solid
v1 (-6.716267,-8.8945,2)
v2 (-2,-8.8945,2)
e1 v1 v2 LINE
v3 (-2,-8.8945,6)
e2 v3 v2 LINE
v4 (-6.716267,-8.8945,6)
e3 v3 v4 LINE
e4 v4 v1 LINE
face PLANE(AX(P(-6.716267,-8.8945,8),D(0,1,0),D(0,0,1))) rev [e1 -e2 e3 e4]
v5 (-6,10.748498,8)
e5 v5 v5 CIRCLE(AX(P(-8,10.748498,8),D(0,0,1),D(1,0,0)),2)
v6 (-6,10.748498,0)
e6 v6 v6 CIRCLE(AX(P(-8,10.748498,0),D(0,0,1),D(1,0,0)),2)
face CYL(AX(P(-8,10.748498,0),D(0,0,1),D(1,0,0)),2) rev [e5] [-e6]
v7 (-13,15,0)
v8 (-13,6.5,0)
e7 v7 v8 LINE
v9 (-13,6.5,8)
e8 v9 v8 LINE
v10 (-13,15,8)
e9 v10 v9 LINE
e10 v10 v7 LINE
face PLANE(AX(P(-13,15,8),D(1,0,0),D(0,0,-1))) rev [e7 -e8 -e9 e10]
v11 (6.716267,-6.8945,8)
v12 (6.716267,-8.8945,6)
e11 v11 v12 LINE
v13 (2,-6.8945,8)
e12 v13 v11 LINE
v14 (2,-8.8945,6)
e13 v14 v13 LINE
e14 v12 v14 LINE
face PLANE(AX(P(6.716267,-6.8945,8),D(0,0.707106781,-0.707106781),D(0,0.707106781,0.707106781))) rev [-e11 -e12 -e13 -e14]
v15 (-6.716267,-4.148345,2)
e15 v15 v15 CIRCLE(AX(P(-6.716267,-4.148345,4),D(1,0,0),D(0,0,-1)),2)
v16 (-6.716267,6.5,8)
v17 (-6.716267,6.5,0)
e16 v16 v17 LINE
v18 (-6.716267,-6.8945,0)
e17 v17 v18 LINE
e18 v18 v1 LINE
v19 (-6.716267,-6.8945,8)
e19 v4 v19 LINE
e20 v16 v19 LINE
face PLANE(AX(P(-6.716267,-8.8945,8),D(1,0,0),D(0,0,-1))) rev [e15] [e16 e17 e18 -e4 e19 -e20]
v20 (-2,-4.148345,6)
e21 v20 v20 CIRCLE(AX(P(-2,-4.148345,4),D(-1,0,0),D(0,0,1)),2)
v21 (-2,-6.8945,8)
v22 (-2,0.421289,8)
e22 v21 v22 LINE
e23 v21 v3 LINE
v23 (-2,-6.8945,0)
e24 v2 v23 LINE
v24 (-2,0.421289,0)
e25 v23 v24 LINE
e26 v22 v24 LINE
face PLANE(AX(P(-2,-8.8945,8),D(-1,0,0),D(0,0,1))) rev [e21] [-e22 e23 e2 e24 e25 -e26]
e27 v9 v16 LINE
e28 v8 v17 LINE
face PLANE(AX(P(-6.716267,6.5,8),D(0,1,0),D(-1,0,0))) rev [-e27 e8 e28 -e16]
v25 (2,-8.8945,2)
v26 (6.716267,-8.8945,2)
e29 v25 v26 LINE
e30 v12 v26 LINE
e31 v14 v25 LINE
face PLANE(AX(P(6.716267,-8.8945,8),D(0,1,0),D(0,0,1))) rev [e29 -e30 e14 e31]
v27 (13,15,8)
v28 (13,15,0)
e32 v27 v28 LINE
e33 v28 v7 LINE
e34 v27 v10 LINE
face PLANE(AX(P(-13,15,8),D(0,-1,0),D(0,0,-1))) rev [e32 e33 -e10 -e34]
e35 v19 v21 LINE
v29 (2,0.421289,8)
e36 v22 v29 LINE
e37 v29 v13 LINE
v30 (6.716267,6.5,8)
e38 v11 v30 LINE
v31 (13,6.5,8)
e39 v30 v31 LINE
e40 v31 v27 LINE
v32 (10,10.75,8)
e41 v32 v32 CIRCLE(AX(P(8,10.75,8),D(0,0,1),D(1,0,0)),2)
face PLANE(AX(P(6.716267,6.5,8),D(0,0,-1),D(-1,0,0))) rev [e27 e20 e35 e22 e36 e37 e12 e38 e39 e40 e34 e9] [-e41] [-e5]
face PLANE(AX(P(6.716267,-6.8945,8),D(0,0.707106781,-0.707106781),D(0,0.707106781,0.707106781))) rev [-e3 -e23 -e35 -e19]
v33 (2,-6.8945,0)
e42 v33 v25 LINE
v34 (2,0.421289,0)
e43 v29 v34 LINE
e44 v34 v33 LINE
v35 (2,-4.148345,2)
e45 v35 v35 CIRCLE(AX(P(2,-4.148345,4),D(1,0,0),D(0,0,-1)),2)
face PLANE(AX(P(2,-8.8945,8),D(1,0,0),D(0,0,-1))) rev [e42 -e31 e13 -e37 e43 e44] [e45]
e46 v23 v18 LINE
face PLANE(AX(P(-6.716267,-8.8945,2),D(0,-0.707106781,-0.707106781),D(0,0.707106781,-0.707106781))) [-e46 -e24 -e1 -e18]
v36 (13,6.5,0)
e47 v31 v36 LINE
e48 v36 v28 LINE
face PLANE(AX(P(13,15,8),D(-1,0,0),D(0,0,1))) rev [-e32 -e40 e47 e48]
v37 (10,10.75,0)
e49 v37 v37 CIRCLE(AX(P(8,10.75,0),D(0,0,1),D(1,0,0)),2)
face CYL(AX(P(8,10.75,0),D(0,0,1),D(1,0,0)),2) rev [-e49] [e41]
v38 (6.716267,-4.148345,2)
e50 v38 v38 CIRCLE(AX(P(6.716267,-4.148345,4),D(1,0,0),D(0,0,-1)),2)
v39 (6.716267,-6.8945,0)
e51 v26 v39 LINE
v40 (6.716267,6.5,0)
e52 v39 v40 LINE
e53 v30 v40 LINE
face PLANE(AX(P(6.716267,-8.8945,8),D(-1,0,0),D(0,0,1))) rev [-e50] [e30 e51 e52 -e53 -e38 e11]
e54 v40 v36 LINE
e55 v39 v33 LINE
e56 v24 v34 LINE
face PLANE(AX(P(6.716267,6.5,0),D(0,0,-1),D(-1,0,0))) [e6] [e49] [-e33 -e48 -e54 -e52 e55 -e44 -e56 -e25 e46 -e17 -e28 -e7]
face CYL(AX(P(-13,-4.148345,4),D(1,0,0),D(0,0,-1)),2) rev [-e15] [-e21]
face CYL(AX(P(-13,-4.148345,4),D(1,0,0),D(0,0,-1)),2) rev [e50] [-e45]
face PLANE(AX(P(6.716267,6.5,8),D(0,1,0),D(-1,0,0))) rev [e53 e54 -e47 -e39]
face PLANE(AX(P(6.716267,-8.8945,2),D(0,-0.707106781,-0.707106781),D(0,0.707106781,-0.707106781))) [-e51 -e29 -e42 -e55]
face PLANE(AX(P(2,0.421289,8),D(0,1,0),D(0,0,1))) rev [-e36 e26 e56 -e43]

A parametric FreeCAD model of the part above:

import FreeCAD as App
import Part
import Sketcher

V = App.Vector


def edges_at(feature, points):
    """Names of the edges that pass closest to the given points."""
    edges = feature.Shape.Edges
    near = lambda p: min(range(len(edges)), key=lambda i: edges[i].distToShape(Part.Vertex(*p))[0])
    return sorted({f"Edge{near(p) + 1}" for p in points})

doc = App.newDocument("Part")
body = doc.addObject("PartDesign::Body", "Body")

# Sketch on XY plane
sketch1 = doc.addObject("Sketcher::SketchObject", "Sketch")
body.addObject(sketch1)
sketch1.AttachmentSupport = (doc.XY_Plane, [""])
sketch1.MapMode = "FlatFace"
sketch1.addGeometry([
    Part.LineSegment(V(13, 15, 0), V(-13, 15, 0)),  # 0
    Part.LineSegment(V(-13, 15, 0), V(-13, 6.5, 0)),  # 1
    Part.LineSegment(V(-13, 6.5, 0), V(-6.7, 6.5, 0)),  # 2
    Part.LineSegment(V(-6.7, 6.5, 0), V(-6.7, -8.9, 0)),  # 3
    Part.LineSegment(V(-6.7, -8.9, 0), V(-2, -8.9, 0)),  # 4
    Part.LineSegment(V(-2, -8.9, 0), V(-2, 0.4, 0)),  # 5
    Part.LineSegment(V(-2, 0.4, 0), V(2, 0.4, 0)),  # 6
    Part.LineSegment(V(2, 0.4, 0), V(2, -8.9, 0)),  # 7
    Part.LineSegment(V(2, -8.9, 0), V(6.7, -8.9, 0)),  # 8
    Part.LineSegment(V(6.7, -8.9, 0), V(6.7, 6.5, 0)),  # 9
    Part.LineSegment(V(6.7, 6.5, 0), V(13, 6.5, 0)),  # 10
    Part.LineSegment(V(13, 6.5, 0), V(13, 15, 0)),  # 11
], False)
sketch1.addConstraint([
    Sketcher.Constraint("Coincident", 0, 2, 1, 1),
    Sketcher.Constraint("Coincident", 1, 2, 2, 1),
    Sketcher.Constraint("Coincident", 2, 2, 3, 1),
    Sketcher.Constraint("Coincident", 3, 2, 4, 1),
    Sketcher.Constraint("Coincident", 4, 2, 5, 1),
    Sketcher.Constraint("Coincident", 5, 2, 6, 1),
    Sketcher.Constraint("Coincident", 6, 2, 7, 1),
    Sketcher.Constraint("Coincident", 7, 2, 8, 1),
    Sketcher.Constraint("Coincident", 8, 2, 9, 1),
    Sketcher.Constraint("Coincident", 9, 2, 10, 1),
    Sketcher.Constraint("Coincident", 10, 2, 11, 1),
    Sketcher.Constraint("Coincident", 11, 2, 0, 1),
    Sketcher.Constraint("Horizontal", 0),
    Sketcher.Constraint("Vertical", 1),
    Sketcher.Constraint("Horizontal", 2),
    Sketcher.Constraint("Vertical", 3),
    Sketcher.Constraint("Horizontal", 4),
    Sketcher.Constraint("Vertical", 5),
    Sketcher.Constraint("Horizontal", 6),
    Sketcher.Constraint("Vertical", 7),
    Sketcher.Constraint("Horizontal", 8),
    Sketcher.Constraint("Vertical", 9),
    Sketcher.Constraint("Horizontal", 10),
    Sketcher.Constraint("Vertical", 11),
    Sketcher.Constraint("Symmetric", 4, 2, 7, 2, -2),
    Sketcher.Constraint("Symmetric", 2, 2, 9, 2, -2),
    Sketcher.Constraint("Equal", 2, 10),
    Sketcher.Constraint("DistanceX", 0, 2, 0, 1, 26.0),
    Sketcher.Constraint("DistanceX", 6, 1, 6, 2, 4.0),
    Sketcher.Constraint("DistanceY", 1, 2, 1, 1, 8.5),
    Sketcher.Constraint("DistanceY", -1, 1, 0, 2, 15.0),
    Sketcher.Constraint("DistanceY", 3, 2, 3, 1, 15.3945),
    Sketcher.Constraint("DistanceY", 5, 1, 5, 2, 9.315789),
    Sketcher.Constraint("DistanceX", 2, 1, 2, 2, 6.283733),
])
pad1 = doc.addObject("PartDesign::Pad", "Pad")
body.addObject(pad1)
pad1.Profile = sketch1
pad1.Length = 8

# Sketch on XY plane
sketch2 = doc.addObject("Sketcher::SketchObject", "Sketch001")
body.addObject(sketch2)
sketch2.AttachmentSupport = (doc.XY_Plane, [""])
sketch2.MapMode = "FlatFace"
sketch2.AttachmentOffset = App.Placement(V(0, 0, 8), App.Rotation())
sketch2.addGeometry([
    Part.Circle(V(-8, 10.7, 0), V(0, 0, 1), 2),
    Part.Circle(V(8, 10.8, 0), V(0, 0, 1), 2),
], False)
sketch2.addConstraint([
    Sketcher.Constraint("Equal", 0, 1),
    Sketcher.Constraint("Diameter", 0, 4.0),
    Sketcher.Constraint("DistanceX", 0, 3, -1, 1, 8.0),
    Sketcher.Constraint("DistanceX", -1, 1, 1, 3, 8.0),
    Sketcher.Constraint("DistanceY", -1, 1, 1, 3, 10.75),
    Sketcher.Constraint("DistanceY", -1, 1, 0, 3, 10.748498),
])
pocket1 = doc.addObject("PartDesign::Pocket", "Pocket")
body.addObject(pocket1)
pocket1.Profile = sketch2
pocket1.Type = "ThroughAll"

# Sketch on YZ plane
sketch3 = doc.addObject("Sketcher::SketchObject", "Sketch002")
body.addObject(sketch3)
sketch3.AttachmentSupport = (doc.YZ_Plane, [""])
sketch3.MapMode = "FlatFace"
sketch3.AttachmentOffset = App.Placement(V(0, 0, 6.716267), App.Rotation())
sketch3.addGeometry(Part.Circle(V(-4.1, 4, 0), V(0, 0, 1), 2), False)
sketch3.addConstraint([
    Sketcher.Constraint("Diameter", 0, 4.0),
    Sketcher.Constraint("DistanceY", -1, 1, 0, 3, 4.0),
    Sketcher.Constraint("DistanceX", 0, 3, -1, 1, 4.148345),
])
pocket2 = doc.addObject("PartDesign::Pocket", "Pocket001")
body.addObject(pocket2)
pocket2.Profile = sketch3
pocket2.Type = "ThroughAll"
doc.recompute()

chamfer = doc.addObject("PartDesign::Chamfer", "Chamfer")
body.addObject(chamfer)
chamfer.Base = (pocket2, edges_at(pocket2, [
    (4.358, -8.894, 0),
    (-4.358, -8.894, 0),
    (-4.358, -8.894, 8),
    (4.358, -8.894, 8),
]))
chamfer.Size = 2

doc.recompute()
